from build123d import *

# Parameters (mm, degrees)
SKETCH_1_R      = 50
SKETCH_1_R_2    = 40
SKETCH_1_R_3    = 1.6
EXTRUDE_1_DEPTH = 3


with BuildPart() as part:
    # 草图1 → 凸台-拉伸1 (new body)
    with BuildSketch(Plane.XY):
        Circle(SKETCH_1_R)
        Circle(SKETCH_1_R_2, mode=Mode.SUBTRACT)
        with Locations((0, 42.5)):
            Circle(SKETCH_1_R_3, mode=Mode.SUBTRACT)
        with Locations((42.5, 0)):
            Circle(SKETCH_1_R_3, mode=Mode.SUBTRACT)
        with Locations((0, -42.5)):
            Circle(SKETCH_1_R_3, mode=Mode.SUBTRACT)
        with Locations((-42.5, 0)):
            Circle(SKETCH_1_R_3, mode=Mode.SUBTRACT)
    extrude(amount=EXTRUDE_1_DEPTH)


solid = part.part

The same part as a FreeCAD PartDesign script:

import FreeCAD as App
import Part
import Sketcher
from FreeCAD import Vector

doc = App.newDocument("Part")
body = doc.addObject("PartDesign::Body", "Body")

# Sketch on XY plane
sketch1 = body.newObject("Sketcher::SketchObject", "Sketch")
sketch1.AttachmentSupport = (doc.getObject("XY_Plane"), [""])
sketch1.MapMode = "FlatFace"
sketch1.addGeometry([
    Part.Circle(Vector(0, 0, 0), Vector(0, 0, 1), 50),  # 0
    Part.Circle(Vector(0, -42.5, 0), Vector(0, 0, 1), 1.6),  # 1
    Part.Circle(Vector(-42.5, 0, 0), Vector(0, 0, 1), 1.6),  # 2
    Part.Circle(Vector(0, 0, 0), Vector(0, 0, 1), 40),  # 3
    Part.Circle(Vector(42.5, 0, 0), Vector(0, 0, 1), 1.6),  # 4
    Part.Circle(Vector(0, 42.5, 0), Vector(0, 0, 1), 1.6),  # 5
], False)
sketch1.addConstraint([
    Sketcher.Constraint("Coincident", 0, 3, -1, 1),
    Sketcher.Constraint("Coincident", 3, 3, -1, 1),
    Sketcher.Constraint("Equal", 1, 2),
    Sketcher.Constraint("Equal", 2, 4),
    Sketcher.Constraint("Equal", 4, 5),
    Sketcher.Constraint("Symmetric", 2, 3, 4, 3, -1, 1),
    Sketcher.Constraint("Symmetric", 1, 3, 5, 3, -1, 1),
    Sketcher.Constraint("PointOnObject", 1, 3, -2),
    Sketcher.Constraint("PointOnObject", 2, 3, -1),
    Sketcher.Constraint("Diameter", 0, 100.0),
    Sketcher.Constraint("Diameter", 3, 80.0),
    Sketcher.Constraint("Diameter", 1, 3.2),
    Sketcher.Constraint("DistanceX", 2, 3, 4, 3, 85.0),
    Sketcher.Constraint("DistanceY", 1, 3, 5, 3, 85.0),
])
pad1 = body.newObject("PartDesign::Pad", "Pad")
pad1.Profile = sketch1
pad1.Length = 3

doc.recompute()
